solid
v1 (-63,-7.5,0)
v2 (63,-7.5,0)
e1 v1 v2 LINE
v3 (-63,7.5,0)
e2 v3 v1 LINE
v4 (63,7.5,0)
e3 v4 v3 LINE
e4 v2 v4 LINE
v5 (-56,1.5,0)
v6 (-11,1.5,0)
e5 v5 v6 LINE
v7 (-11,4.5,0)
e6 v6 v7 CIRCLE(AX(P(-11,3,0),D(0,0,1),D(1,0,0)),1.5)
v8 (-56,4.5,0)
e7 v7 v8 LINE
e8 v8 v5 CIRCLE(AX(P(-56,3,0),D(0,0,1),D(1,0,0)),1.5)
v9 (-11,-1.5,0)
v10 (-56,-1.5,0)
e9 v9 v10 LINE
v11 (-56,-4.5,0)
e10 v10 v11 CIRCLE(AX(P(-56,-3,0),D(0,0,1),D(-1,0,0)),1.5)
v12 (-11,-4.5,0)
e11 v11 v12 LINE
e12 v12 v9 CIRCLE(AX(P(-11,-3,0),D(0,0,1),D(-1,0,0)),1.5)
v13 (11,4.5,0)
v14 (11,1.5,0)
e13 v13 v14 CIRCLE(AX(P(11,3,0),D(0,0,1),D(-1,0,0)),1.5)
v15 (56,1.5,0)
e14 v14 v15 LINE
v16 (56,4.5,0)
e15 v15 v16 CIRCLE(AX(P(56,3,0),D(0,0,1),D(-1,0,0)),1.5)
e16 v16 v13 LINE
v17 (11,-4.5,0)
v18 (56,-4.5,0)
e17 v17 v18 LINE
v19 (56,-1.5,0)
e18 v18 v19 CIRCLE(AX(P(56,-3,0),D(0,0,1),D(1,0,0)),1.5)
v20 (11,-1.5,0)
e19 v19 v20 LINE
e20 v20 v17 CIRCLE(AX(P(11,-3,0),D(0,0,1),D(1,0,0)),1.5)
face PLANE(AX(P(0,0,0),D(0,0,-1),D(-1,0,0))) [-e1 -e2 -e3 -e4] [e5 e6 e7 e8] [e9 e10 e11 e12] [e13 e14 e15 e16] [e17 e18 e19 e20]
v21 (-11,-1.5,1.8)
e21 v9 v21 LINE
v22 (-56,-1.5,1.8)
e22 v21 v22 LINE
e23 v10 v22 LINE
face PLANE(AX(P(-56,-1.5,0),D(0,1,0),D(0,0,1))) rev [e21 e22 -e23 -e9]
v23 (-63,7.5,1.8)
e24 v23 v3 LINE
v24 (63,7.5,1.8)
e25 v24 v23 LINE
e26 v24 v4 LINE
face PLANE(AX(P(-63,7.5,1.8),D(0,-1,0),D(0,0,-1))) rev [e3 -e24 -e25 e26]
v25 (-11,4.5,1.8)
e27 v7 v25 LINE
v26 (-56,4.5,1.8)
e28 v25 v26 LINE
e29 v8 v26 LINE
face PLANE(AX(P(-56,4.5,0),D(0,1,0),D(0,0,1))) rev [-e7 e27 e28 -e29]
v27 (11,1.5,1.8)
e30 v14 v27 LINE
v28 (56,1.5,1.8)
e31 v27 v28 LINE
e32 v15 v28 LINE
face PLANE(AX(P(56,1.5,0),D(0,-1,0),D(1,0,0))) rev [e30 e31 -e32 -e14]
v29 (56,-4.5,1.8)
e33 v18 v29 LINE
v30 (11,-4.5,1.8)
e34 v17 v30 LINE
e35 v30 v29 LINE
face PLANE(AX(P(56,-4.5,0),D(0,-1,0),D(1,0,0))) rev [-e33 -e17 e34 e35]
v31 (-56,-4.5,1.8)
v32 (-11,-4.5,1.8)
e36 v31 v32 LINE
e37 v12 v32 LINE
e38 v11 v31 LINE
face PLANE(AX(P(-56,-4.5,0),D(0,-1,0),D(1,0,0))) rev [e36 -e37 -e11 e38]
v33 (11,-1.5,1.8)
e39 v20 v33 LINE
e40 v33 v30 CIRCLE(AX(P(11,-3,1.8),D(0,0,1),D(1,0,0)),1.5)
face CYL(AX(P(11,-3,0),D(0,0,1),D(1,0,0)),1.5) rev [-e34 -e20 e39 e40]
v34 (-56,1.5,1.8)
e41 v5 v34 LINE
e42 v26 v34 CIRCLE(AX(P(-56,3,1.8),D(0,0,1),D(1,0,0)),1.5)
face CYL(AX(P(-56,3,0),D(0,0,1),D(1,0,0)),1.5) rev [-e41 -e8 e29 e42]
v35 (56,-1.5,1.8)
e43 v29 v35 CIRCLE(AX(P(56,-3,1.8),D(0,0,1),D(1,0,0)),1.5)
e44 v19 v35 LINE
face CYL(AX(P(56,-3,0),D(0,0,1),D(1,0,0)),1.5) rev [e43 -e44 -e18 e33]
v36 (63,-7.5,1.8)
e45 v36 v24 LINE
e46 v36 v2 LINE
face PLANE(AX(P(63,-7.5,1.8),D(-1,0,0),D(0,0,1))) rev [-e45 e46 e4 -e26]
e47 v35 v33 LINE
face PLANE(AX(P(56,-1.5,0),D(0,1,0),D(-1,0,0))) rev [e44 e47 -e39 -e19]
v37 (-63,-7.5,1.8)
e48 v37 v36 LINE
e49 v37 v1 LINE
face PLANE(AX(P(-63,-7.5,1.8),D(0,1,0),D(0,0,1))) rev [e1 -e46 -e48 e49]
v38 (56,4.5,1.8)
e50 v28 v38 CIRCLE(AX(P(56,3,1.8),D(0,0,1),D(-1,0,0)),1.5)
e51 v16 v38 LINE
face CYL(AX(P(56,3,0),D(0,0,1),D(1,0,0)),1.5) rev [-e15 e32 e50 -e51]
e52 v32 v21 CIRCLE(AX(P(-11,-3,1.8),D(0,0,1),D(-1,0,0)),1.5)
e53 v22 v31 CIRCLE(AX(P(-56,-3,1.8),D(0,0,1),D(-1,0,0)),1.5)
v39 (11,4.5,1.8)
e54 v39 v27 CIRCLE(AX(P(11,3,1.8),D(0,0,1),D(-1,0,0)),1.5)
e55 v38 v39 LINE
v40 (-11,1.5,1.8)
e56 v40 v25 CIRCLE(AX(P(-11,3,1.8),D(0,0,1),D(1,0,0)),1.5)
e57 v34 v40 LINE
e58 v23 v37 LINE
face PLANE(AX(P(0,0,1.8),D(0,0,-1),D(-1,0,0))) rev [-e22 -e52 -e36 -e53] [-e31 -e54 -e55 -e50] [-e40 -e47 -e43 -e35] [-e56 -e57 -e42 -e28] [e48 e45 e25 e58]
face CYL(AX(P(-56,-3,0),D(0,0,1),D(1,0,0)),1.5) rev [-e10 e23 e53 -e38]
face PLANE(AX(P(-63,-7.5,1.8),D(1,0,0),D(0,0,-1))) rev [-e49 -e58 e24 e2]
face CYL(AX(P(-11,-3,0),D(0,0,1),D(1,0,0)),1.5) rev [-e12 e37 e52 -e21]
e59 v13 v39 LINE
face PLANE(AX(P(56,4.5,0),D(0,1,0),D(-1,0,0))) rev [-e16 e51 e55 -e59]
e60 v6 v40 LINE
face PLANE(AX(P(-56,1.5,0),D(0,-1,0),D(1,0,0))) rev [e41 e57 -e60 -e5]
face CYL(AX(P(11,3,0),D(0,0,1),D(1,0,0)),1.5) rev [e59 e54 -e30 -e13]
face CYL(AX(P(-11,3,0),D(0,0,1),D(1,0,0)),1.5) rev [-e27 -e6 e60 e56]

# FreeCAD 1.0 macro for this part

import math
import FreeCAD as App
import Part
import Sketcher
from FreeCAD import Vector


def add_polygon(sketch, points):
    """Adds a closed chain of lines whose ends are joined by coincident constraints."""
    first, n = sketch.GeometryCount, len(points)
    for a, b in zip(points, points[1:] + points[:1]):
        sketch.addGeometry(Part.LineSegment(App.Vector(*a, 0), App.Vector(*b, 0)), False)
    for i in range(n):
        sketch.addConstraint(Sketcher.Constraint("Coincident", first + i, 2, first + (i + 1) % n, 1))

doc = App.newDocument("Part")
body = doc.addObject("PartDesign::Body", "Body")

# Sketch on XY plane
sketch1 = body.newObject("Sketcher::SketchObject", "Sketch")
sketch1.AttachmentSupport = (doc.getObject("XY_Plane"), [""])
sketch1.MapMode = "FlatFace"
add_polygon(sketch1, [(-63, 7.5), (-63, -7.5), (63, -7.5), (63, 7.5)])  # lines 0-3
sketch1.addConstraint([
    Sketcher.Constraint("Vertical", 0),
    Sketcher.Constraint("Horizontal", 1),
    Sketcher.Constraint("Vertical", 2),
    Sketcher.Constraint("Horizontal", 3),
    Sketcher.Constraint("Symmetric", 0, 2, 2, 2, -1, 1),
    Sketcher.Constraint("DistanceX", 1, 1, 1, 2, 126.0),
    Sketcher.Constraint("DistanceY", 0, 2, 0, 1, 15.0),
])
pad1 = body.newObject("PartDesign::Pad", "Pad")
pad1.Profile = sketch1
pad1.Length = 1.8

# Sketch on XY plane
sketch2 = body.newObject("Sketcher::SketchObject", "Sketch001")
sketch2.AttachmentSupport = (doc.getObject("XY_Plane"), [""])
sketch2.MapMode = "FlatFace"
sketch2.AttachmentOffset = App.Placement(Vector(0, 0, 1.8), App.Rotation())
sketch2.addGeometry([
    Part.LineSegment(Vector(-11, 4.5, 0), Vector(-56, 4.5, 0)),  # 0
    Part.ArcOfCircle(Part.Circle(Vector(-56, 3, 0), Vector(0, 0, 1), 1.5), math.radians(90), math.radians(270)),  # 1
    Part.LineSegment(Vector(-56, 1.5, 0), Vector(-11, 1.5, 0)),  # 2
    Part.ArcOfCircle(Part.Circle(Vector(-11, 3, 0), Vector(0, 0, 1), 1.5), math.radians(-90), math.radians(90)),  # 3
    Part.LineSegment(Vector(-56, -4.5, 0), Vector(-11, -4.5, 0)),  # 4
    Part.ArcOfCircle(Part.Circle(Vector(-11, -3, 0), Vector(0, 0, 1), 1.5), math.radians(-90), math.radians(90)),  # 5
    Part.LineSegment(Vector(-11, -1.5, 0), Vector(-56, -1.5, 0)),  # 6
    Part.ArcOfCircle(Part.Circle(Vector(-56, -3, 0), Vector(0, 0, 1), 1.5), math.radians(90), math.radians(270)),  # 7
    Part.LineSegment(Vector(11, -4.5, 0), Vector(56, -4.5, 0)),  # 8
    Part.ArcOfCircle(Part.Circle(Vector(56, -3, 0), Vector(0, 0, 1), 1.5), math.radians(-90), math.radians(90)),  # 9
    Part.LineSegment(Vector(56, -1.5, 0), Vector(11, -1.5, 0)),  # 10
    Part.ArcOfCircle(Part.Circle(Vector(11, -3, 0), Vector(0, 0, 1), 1.5), math.radians(90), math.radians(270)),  # 11
    Part.LineSegment(Vector(56, 4.5, 0), Vector(11, 4.5, 0)),  # 12
    Part.ArcOfCircle(Part.Circle(Vector(11, 3, 0), Vector(0, 0, 1), 1.5), math.radians(90), math.radians(270)),  # 13
    Part.LineSegment(Vector(11, 1.5, 0), Vector(56, 1.5, 0)),  # 14
    Part.ArcOfCircle(Part.Circle(Vector(56, 3, 0), Vector(0, 0, 1), 1.5), math.radians(-90), math.radians(90)),  # 15
], False)
sketch2.addConstraint([
    Sketcher.Constraint("Tangent", 0, 2, 1, 1),
    Sketcher.Constraint("Tangent", 1, 2, 2, 1),
    Sketcher.Constraint("Tangent", 2, 2, 3, 1),
    Sketcher.Constraint("Tangent", 3, 2, 0, 1),
    Sketcher.Constraint("Tangent", 4, 2, 5, 1),
    Sketcher.Constraint("Tangent", 5, 2, 6, 1),
    Sketcher.Constraint("Tangent", 6, 2, 7, 1),
    Sketcher.Constraint("Tangent", 7, 2, 4, 1),
    Sketcher.Constraint("Tangent", 8, 2, 9, 1),
    Sketcher.Constraint("Tangent", 9, 2, 10, 1),
    Sketcher.Constraint("Tangent", 10, 2, 11, 1),
    Sketcher.Constraint("Tangent", 11, 2, 8, 1),
    Sketcher.Constraint("Tangent", 12, 2, 13, 1),
    Sketcher.Constraint("Tangent", 13, 2, 14, 1),
    Sketcher.Constraint("Tangent", 14, 2, 15, 1),
    Sketcher.Constraint("Tangent", 15, 2, 12, 1),
    Sketcher.Constraint("Horizontal", 0),
    Sketcher.Constraint("Horizontal", 2),
    Sketcher.Constraint("Horizontal", 4),
    Sketcher.Constraint("Horizontal", 6),
    Sketcher.Constraint("Horizontal", 8),
    Sketcher.Constraint("Horizontal", 10),
    Sketcher.Constraint("Horizontal", 12),
    Sketcher.Constraint("Horizontal", 14),
    Sketcher.Constraint("Equal", 3, 5),
    Sketcher.Constraint("Equal", 7, 9),
    Sketcher.Constraint("Equal", 11, 13),
    Sketcher.Constraint("Symmetric", 1, 3, 9, 3, -1, 1),
    Sketcher.Constraint("Symmetric", 5, 3, 13, 3, -1, 1),
    Sketcher.Constraint("Symmetric", 7, 3, 9, 3, -2),
    Sketcher.Constraint("Vertical", 3, 3, 5, 3),
    Sketcher.Constraint("Vertical", 11, 3, 13, 3),
    Sketcher.Constraint("Vertical", 9, 3, 15, 3),
    Sketcher.Constraint("Radius", 1, 1.5),
    Sketcher.Constraint("DistanceX", 0, 2, 0, 1, 45.0),
    Sketcher.Constraint("DistanceX", 1, 3, -1, 1, 56.0),
    Sketcher.Constraint("DistanceY", -1, 1, 1, 3, 3.0),
])
pocket1 = body.newObject("PartDesign::Pocket", "Pocket")
pocket1.Profile = sketch2
pocket1.Type = "ThroughAll"

doc.recompute()
